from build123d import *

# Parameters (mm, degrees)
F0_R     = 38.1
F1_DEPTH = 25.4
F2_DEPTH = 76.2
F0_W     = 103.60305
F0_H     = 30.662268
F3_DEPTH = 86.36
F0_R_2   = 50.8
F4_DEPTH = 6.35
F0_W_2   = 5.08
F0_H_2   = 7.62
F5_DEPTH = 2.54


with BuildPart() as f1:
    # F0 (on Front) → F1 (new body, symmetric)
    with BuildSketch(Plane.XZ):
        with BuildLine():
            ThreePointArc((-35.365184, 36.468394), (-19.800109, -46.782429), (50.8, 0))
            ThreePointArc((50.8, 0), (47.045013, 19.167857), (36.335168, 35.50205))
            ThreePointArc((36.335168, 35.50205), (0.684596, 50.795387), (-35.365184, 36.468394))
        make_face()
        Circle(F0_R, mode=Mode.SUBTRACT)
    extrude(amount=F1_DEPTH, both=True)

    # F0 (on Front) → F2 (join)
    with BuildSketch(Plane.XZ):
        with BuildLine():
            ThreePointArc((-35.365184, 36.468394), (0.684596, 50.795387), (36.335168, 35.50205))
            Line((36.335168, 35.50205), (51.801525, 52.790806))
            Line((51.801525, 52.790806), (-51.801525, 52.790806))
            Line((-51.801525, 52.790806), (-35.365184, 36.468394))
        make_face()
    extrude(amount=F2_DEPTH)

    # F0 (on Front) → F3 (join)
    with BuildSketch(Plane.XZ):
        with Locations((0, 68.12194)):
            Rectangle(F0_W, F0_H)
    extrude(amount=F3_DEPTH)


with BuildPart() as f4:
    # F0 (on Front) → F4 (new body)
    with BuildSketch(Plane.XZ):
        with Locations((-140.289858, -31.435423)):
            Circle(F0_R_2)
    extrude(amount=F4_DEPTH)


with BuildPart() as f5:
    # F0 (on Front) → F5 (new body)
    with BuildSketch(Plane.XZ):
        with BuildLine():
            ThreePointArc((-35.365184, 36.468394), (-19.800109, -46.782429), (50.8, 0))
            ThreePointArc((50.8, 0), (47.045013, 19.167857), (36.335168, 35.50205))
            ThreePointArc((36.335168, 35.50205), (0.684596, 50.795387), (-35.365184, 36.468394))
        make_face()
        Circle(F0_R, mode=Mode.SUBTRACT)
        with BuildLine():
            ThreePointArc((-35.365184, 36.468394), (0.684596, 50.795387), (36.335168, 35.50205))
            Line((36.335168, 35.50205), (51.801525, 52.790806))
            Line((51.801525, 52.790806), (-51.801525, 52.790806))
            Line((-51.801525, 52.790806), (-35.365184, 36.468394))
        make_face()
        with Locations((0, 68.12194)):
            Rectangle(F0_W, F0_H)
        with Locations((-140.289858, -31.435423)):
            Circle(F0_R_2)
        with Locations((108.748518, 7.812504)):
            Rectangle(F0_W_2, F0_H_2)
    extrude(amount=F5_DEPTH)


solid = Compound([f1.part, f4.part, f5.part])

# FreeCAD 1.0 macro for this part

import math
import FreeCAD as App
import Part
import Sketcher
Q = App.Units.Quantity

doc = App.newDocument("Part")
body = doc.addObject("PartDesign::Body", "Body")

# Sketch on XZ plane
sketch1 = doc.addObject("Sketcher::SketchObject", "Sketch")
body.addObject(sketch1)
sketch1.AttachmentSupport = (doc.XZ_Plane, [""])
sketch1.MapMode = "FlatFace"
sketch1.addGeometry([
    Part.ArcOfCircle(Part.Circle(App.Vector(0, 0, 0), App.Vector(0, 0, 1), 51), math.radians(134), math.radians(360)),
    Part.ArcOfCircle(Part.Circle(App.Vector(0, 0, 0), App.Vector(0, 0, 1), 51), math.radians(0), math.radians(44)),
    Part.ArcOfCircle(Part.Circle(App.Vector(0, 0, 0), App.Vector(0, 0, 1), 51), math.radians(44), math.radians(134)),
    Part.Circle(App.Vector(0, 0, 0), App.Vector(0, 0, 1), 38),
], False)
sketch1.addConstraint([
    Sketcher.Constraint("Tangent", 0, 2, 1, 1),
    Sketcher.Constraint("Tangent", 1, 2, 2, 1),
    Sketcher.Constraint("Tangent", 2, 2, 0, 1),
    Sketcher.Constraint("Coincident", 0, 3, -1, 1),
    Sketcher.Constraint("Coincident", 3, 3, -1, 1),
    Sketcher.Constraint("PointOnObject", 0, 2, -1),
    Sketcher.Constraint("Diameter", 3, Q("3 in")),
    Sketcher.Constraint("Radius", 0, Q("2 in")),
    Sketcher.Constraint("DistanceX", -1, 1, 1, 2, Q("36.335168 mm")),
    Sketcher.Constraint("DistanceX", 2, 2, -1, 1, Q("35.365184 mm")),
])
pad1 = doc.addObject("PartDesign::Pad", "Pad")
body.addObject(pad1)
pad1.Profile = sketch1
pad1.Length = Q("2 in")
pad1.Midplane = True

# Sketch on XZ plane
sketch2 = doc.addObject("Sketcher::SketchObject", "Sketch001")
body.addObject(sketch2)
sketch2.AttachmentSupport = (doc.XZ_Plane, [""])
sketch2.MapMode = "FlatFace"
sketch2.addGeometry([
    Part.ArcOfCircle(Part.Circle(App.Vector(0, 0, 0), App.Vector(0, 0, 1), 51), math.radians(44), math.radians(134)),
    Part.LineSegment(App.Vector(36, 36, 0), App.Vector(52, 53, 0)),
    Part.LineSegment(App.Vector(52, 53, 0), App.Vector(-52, 53, 0)),
    Part.LineSegment(App.Vector(-52, 53, 0), App.Vector(-35, 36, 0)),
], False)
sketch2.addConstraint([
    Sketcher.Constraint("Coincident", 0, 1, 1, 1),
    Sketcher.Constraint("Coincident", 1, 2, 2, 1),
    Sketcher.Constraint("Coincident", 2, 2, 3, 1),
    Sketcher.Constraint("Coincident", 3, 2, 0, 2),
    Sketcher.Constraint("Horizontal", 2),
    Sketcher.Constraint("Coincident", 0, 3, -1, 1),
    Sketcher.Constraint("Radius", 0, Q("2 in")),
    Sketcher.Constraint("DistanceX", 2, 2, 3, 2, Q("0.6471 in")),
    Sketcher.Constraint("DistanceX", 2, 2, 2, 1, Q("103.60305 mm")),
    Sketcher.Constraint("DistanceX", -1, 1, 0, 1, Q("36.335168 mm")),
    Sketcher.Constraint("DistanceY", 3, 2, 2, 2, Q("16.322412 mm")),
    Sketcher.Constraint("Distance", 1, Q("23.197183 mm")),
])
pad2 = doc.addObject("PartDesign::Pad", "Pad001")
body.addObject(pad2)
pad2.Profile = sketch2
pad2.Length = Q("3 in")

# Sketch on XZ plane
sketch3 = doc.addObject("Sketcher::SketchObject", "Sketch002")
body.addObject(sketch3)
sketch3.AttachmentSupport = (doc.XZ_Plane, [""])
sketch3.MapMode = "FlatFace"
sketch3.addGeometry([
    Part.LineSegment(App.Vector(-52, 83, 0), App.Vector(-52, 53, 0)),
    Part.LineSegment(App.Vector(-52, 53, 0), App.Vector(52, 53, 0)),
    Part.LineSegment(App.Vector(52, 53, 0), App.Vector(52, 83, 0)),
    Part.LineSegment(App.Vector(52, 83, 0), App.Vector(-52, 83, 0)),
], False)
sketch3.addConstraint([
    Sketcher.Constraint("Coincident", 0, 2, 1, 1),
    Sketcher.Constraint("Coincident", 1, 2, 2, 1),
    Sketcher.Constraint("Coincident", 2, 2, 3, 1),
    Sketcher.Constraint("Coincident", 3, 2, 0, 1),
    Sketcher.Constraint("Vertical", 0),
    Sketcher.Constraint("Horizontal", 1),
    Sketcher.Constraint("Vertical", 2),
    Sketcher.Constraint("Horizontal", 3),
    Sketcher.Constraint("DistanceX", 1, 1, 1, 2, Q("103.60305 mm")),
    Sketcher.Constraint("DistanceY", 0, 2, 0, 1, Q("30.662268 mm")),
    Sketcher.Constraint("DistanceX", 0, 2, -1, 1, Q("51.801525 mm")),
    Sketcher.Constraint("DistanceY", -1, 1, 0, 2, Q("52.790806 mm")),
])
pad3 = doc.addObject("PartDesign::Pad", "Pad002")
body.addObject(pad3)
pad3.Profile = sketch3
pad3.Length = Q("3.4 in")
body2 = doc.addObject("PartDesign::Body", "Body001")

# Sketch on XZ plane
sketch4 = doc.addObject("Sketcher::SketchObject", "Sketch003")
body2.addObject(sketch4)
sketch4.AttachmentSupport = (doc.getObject("XZ_Plane001"), [""])
sketch4.MapMode = "FlatFace"
sketch4.addGeometry(Part.Circle(App.Vector(-140, -31, 0), App.Vector(0, 0, 1), 51), False)
sketch4.addConstraint([
    Sketcher.Constraint("Diameter", 0, Q("4 in")),
    Sketcher.Constraint("DistanceX", 0, 3, -1, 1, Q("140.289858 mm")),
    Sketcher.Constraint("DistanceY", 0, 3, -1, 1, Q("31.435423 mm")),
])
pad4 = doc.addObject("PartDesign::Pad", "Pad003")
body2.addObject(pad4)
pad4.Profile = sketch4
pad4.Length = Q("0.25 in")
body3 = doc.addObject("PartDesign::Body", "Body002")
body3.AllowCompound = True

# Sketch on XZ plane
sketch5 = doc.addObject("Sketcher::SketchObject", "Sketch004")
body3.addObject(sketch5)
sketch5.AttachmentSupport = (doc.getObject("XZ_Plane002"), [""])
sketch5.MapMode = "FlatFace"
sketch5.addGeometry([
    Part.ArcOfCircle(Part.Circle(App.Vector(0, 0, 0), App.Vector(0, 0, 1), 51), math.radians(134), math.radians(360)),  # 0
    Part.ArcOfCircle(Part.Circle(App.Vector(0, 0, 0), App.Vector(0, 0, 1), 51), math.radians(0), math.radians(44)),  # 1
    Part.LineSegment(App.Vector(36, 36, 0), App.Vector(52, 53, 0)),  # 2
    Part.LineSegment(App.Vector(52, 53, 0), App.Vector(52, 83, 0)),  # 3
    Part.LineSegment(App.Vector(52, 83, 0), App.Vector(-52, 83, 0)),  # 4
    Part.LineSegment(App.Vector(-52, 83, 0), App.Vector(-52, 53, 0)),  # 5
    Part.LineSegment(App.Vector(-52, 53, 0), App.Vector(-35, 36, 0)),  # 6
    Part.Circle(App.Vector(0, 0, 0), App.Vector(0, 0, 1), 38),  # 7
    Part.Circle(App.Vector(-140, -31, 0), App.Vector(0, 0, 1), 51),  # 8
    Part.LineSegment(App.Vector(106, 12, 0), App.Vector(106, 4, 0)),  # 9
    Part.LineSegment(App.Vector(106, 4, 0), App.Vector(111, 4, 0)),  # 10
    Part.LineSegment(App.Vector(111, 4, 0), App.Vector(111, 12, 0)),  # 11
    Part.LineSegment(App.Vector(111, 12, 0), App.Vector(106, 12, 0)),  # 12
], False)
sketch5.addConstraint([
    Sketcher.Constraint("Tangent", 0, 2, 1, 1),
    Sketcher.Constraint("Coincident", 1, 2, 2, 1),
    Sketcher.Constraint("Coincident", 2, 2, 3, 1),
    Sketcher.Constraint("Coincident", 3, 2, 4, 1),
    Sketcher.Constraint("Coincident", 4, 2, 5, 1),
    Sketcher.Constraint("Coincident", 5, 2, 6, 1),
    Sketcher.Constraint("Coincident", 6, 2, 0, 1),
    Sketcher.Constraint("Coincident", 9, 2, 10, 1),
    Sketcher.Constraint("Coincident", 10, 2, 11, 1),
    Sketcher.Constraint("Coincident", 11, 2, 12, 1),
    Sketcher.Constraint("Coincident", 12, 2, 9, 1),
    Sketcher.Constraint("Vertical", 3),
    Sketcher.Constraint("Horizontal", 4),
    Sketcher.Constraint("Vertical", 5),
    Sketcher.Constraint("Vertical", 9),
    Sketcher.Constraint("Horizontal", 10),
    Sketcher.Constraint("Vertical", 11),
    Sketcher.Constraint("Horizontal", 12),
    Sketcher.Constraint("Coincident", 0, 3, -1, 1),
    Sketcher.Constraint("Coincident", 7, 3, -1, 1),
    Sketcher.Constraint("Equal", 0, 1),
    Sketcher.Constraint("Equal", 1, 8),
    Sketcher.Constraint("Symmetric", 2, 2, 5, 2, -2),
    Sketcher.Constraint("PointOnObject", 0, 2, -1),
    Sketcher.Constraint("Diameter", 7, Q("3 in")),
    Sketcher.Constraint("Diameter", 8, Q("4 in")),
    Sketcher.Constraint("DistanceX", 10, 1, 10, 2, Q("0.2 in")),
    Sketcher.Constraint("DistanceY", 9, 2, 9, 1, Q("0.3 in")),
    Sketcher.Constraint("DistanceX", 5, 2, 6, 2, Q("0.6471 in")),
    Sketcher.Constraint("DistanceX", 4, 2, 4, 1, Q("103.60305 mm")),
    Sketcher.Constraint("DistanceY", 3, 1, 3, 2, Q("30.662268 mm")),
    Sketcher.Constraint("DistanceX", 8, 3, -1, 1, Q("140.289858 mm")),
    Sketcher.Constraint("DistanceX", -1, 1, 1, 2, Q("36.335168 mm")),
    Sketcher.Constraint("DistanceX", -1, 1, 9, 2, Q("106.208518 mm")),
    Sketcher.Constraint("DistanceY", 6, 2, 5, 2, Q("16.322412 mm")),
    Sketcher.Constraint("DistanceY", 9, 2, 3, 2, Q("79.45057 mm")),
    Sketcher.Constraint("DistanceY", 8, 3, -1, 1, Q("31.435423 mm")),
])
pad5 = doc.addObject("PartDesign::Pad", "Pad004")
body3.addObject(pad5)
pad5.Profile = sketch5
pad5.Length = Q("0.1 in")

doc.recompute()
